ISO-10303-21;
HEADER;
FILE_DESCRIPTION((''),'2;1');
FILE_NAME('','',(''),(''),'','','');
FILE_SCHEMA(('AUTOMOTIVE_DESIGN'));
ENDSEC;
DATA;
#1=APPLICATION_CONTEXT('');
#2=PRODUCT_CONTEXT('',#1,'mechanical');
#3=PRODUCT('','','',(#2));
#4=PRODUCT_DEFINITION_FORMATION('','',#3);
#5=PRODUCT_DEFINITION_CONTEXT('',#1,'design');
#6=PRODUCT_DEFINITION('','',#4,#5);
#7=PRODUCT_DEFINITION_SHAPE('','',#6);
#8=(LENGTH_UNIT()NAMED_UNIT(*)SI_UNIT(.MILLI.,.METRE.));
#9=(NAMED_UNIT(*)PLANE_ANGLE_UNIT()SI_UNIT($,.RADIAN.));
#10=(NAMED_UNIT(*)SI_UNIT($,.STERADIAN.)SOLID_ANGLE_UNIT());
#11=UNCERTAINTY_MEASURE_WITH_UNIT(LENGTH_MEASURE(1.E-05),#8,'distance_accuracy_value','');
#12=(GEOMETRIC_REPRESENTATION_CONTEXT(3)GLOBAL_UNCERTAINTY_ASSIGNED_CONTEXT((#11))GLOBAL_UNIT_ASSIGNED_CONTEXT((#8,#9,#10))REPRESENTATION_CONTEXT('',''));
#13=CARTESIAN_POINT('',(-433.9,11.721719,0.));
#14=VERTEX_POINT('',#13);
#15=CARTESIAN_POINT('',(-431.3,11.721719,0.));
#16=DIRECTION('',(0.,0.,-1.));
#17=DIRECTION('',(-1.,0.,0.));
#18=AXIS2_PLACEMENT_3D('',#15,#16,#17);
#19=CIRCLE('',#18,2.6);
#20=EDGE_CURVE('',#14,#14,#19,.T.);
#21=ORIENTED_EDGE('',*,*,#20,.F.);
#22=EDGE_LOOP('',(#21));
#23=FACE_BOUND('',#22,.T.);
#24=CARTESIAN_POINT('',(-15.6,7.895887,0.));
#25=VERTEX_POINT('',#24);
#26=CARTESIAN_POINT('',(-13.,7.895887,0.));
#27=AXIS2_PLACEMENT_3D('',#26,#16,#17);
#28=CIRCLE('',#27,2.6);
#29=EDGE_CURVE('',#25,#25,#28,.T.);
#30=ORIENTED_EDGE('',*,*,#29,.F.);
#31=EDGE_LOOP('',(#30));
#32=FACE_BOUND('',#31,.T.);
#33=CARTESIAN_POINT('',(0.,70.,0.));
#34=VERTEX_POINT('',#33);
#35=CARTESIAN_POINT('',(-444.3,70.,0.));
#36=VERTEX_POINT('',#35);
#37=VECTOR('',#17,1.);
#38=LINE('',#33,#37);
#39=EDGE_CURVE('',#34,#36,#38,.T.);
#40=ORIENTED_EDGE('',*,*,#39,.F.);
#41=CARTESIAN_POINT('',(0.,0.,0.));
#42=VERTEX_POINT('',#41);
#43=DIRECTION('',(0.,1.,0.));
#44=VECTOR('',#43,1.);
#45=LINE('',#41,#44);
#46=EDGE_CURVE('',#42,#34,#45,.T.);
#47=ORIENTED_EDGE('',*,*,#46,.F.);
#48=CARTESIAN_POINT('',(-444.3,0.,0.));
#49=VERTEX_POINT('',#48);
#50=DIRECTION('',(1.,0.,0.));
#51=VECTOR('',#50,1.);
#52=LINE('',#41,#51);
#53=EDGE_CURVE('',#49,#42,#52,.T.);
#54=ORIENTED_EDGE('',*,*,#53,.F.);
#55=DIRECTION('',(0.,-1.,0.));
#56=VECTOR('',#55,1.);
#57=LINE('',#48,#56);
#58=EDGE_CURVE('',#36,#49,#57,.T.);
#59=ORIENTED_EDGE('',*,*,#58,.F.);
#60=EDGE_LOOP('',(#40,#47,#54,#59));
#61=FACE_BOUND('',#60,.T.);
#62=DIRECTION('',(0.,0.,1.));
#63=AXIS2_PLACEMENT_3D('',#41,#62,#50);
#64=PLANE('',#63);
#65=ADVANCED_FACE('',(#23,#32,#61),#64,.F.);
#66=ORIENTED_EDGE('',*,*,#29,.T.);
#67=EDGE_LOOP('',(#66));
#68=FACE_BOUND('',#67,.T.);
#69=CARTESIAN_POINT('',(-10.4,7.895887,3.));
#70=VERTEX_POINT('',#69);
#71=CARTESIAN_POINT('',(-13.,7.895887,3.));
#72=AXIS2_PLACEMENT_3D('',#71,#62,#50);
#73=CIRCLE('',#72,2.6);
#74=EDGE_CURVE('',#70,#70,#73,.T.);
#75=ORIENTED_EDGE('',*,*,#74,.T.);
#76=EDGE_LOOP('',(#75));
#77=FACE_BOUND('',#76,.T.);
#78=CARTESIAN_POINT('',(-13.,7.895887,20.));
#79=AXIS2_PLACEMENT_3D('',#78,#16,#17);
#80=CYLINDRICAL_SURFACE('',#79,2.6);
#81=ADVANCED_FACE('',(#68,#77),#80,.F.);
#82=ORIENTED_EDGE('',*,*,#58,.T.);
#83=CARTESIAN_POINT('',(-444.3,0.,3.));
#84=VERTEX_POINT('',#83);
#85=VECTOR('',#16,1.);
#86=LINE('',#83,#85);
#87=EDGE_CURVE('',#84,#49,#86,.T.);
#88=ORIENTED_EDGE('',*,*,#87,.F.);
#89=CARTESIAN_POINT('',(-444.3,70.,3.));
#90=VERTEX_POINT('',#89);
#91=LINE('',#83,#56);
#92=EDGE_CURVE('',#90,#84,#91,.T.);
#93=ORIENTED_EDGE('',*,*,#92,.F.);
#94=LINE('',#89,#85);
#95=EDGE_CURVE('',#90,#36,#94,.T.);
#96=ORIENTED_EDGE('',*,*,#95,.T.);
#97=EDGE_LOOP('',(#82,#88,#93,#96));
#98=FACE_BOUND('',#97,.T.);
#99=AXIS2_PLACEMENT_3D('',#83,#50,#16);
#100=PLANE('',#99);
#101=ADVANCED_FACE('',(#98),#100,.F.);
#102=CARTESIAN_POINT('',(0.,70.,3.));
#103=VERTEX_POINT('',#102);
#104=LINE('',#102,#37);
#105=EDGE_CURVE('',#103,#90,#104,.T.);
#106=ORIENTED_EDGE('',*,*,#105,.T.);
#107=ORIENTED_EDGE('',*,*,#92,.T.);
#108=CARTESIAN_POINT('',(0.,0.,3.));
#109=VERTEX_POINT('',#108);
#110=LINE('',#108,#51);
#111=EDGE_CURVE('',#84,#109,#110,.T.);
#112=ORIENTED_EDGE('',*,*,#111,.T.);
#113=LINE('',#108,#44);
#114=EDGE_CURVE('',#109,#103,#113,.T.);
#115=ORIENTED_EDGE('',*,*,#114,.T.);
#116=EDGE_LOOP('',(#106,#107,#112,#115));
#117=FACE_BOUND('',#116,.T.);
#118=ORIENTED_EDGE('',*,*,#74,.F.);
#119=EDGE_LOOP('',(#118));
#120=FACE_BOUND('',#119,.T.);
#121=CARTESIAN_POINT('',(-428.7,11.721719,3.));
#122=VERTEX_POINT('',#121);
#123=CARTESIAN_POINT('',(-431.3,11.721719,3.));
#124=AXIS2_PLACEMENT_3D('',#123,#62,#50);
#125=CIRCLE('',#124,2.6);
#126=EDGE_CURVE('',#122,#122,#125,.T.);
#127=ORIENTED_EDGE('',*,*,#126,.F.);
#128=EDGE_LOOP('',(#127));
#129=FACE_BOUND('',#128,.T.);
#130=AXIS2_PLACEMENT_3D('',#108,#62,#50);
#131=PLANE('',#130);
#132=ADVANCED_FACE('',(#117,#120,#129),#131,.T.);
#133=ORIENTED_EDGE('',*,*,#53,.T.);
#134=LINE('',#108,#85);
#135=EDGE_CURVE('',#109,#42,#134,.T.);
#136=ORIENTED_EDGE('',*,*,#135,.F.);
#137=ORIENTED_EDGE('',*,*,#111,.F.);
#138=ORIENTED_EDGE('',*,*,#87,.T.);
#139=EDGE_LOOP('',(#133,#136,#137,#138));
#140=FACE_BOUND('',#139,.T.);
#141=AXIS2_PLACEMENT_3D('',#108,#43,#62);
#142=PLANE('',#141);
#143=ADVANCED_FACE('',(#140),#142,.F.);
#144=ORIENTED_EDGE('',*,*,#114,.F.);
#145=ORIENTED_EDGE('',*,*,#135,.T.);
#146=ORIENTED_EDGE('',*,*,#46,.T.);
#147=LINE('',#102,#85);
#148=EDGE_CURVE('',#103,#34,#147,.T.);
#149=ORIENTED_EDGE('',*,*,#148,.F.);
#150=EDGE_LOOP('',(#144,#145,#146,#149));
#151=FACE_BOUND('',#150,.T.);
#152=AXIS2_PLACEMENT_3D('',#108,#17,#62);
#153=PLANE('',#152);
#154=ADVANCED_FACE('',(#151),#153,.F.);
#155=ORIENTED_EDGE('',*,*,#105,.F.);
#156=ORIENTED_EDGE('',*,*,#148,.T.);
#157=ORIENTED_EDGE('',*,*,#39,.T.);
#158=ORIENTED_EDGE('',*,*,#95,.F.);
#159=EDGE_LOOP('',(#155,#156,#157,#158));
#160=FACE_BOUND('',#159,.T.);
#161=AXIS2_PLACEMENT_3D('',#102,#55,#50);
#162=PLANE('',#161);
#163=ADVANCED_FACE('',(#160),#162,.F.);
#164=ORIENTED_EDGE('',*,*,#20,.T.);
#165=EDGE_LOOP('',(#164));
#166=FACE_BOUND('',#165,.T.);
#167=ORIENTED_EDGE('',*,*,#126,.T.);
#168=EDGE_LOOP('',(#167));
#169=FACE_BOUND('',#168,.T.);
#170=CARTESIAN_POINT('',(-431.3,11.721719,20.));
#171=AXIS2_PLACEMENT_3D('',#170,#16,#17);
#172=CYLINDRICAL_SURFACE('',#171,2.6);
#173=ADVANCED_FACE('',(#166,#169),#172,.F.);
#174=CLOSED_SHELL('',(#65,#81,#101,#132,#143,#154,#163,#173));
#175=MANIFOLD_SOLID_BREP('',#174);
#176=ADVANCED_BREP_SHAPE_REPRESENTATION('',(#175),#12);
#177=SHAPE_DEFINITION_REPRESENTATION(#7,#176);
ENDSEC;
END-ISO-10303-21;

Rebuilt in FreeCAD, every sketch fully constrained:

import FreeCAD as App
import Part
import Sketcher
from FreeCAD import Vector
Q = App.Units.Quantity


def add_polygon(sketch, points):
    """Adds a closed chain of lines whose ends are joined by coincident constraints."""
    first, n = sketch.GeometryCount, len(points)
    for a, b in zip(points, points[1:] + points[:1]):
        sketch.addGeometry(Part.LineSegment(App.Vector(*a, 0), App.Vector(*b, 0)), False)
    for i in range(n):
        sketch.addConstraint(Sketcher.Constraint("Coincident", first + i, 2, first + (i + 1) % n, 1))

doc = App.newDocument("Part")
body = doc.addObject("PartDesign::Body", "Body")

# Sketch on XY plane
sketch1 = body.newObject("Sketcher::SketchObject", "Sketch")
sketch1.AttachmentSupport = (doc.getObject("XY_Plane"), [""])
sketch1.MapMode = "FlatFace"
add_polygon(sketch1, [(-444, 70), (-444, 0), (0, 0), (0, 70)])  # lines 0-3
sketch1.addConstraint(Sketcher.Constraint("Vertical", 0))
sketch1.addConstraint(Sketcher.Constraint("Horizontal", 1))
sketch1.addConstraint(Sketcher.Constraint("Vertical", 2))
sketch1.addConstraint(Sketcher.Constraint("Horizontal", 3))
sketch1.addConstraint(Sketcher.Constraint("Coincident", 1, 2, -1, 1))
sketch1.addConstraint(Sketcher.Constraint("DistanceY", 0, 2, 0, 1, Q("70 mm")))
sketch1.addConstraint(Sketcher.Constraint("DistanceX", 1, 1, 1, 2, Q("444.3 mm")))
pad1 = body.newObject("PartDesign::Pad", "Pad")
pad1.Profile = sketch1
pad1.Length = 3

# Sketch on XY plane
sketch2 = body.newObject("Sketcher::SketchObject", "Sketch001")
sketch2.AttachmentSupport = (doc.getObject("XY_Plane"), [""])
sketch2.MapMode = "FlatFace"
sketch2.addGeometry(Part.Circle(Vector(-13, 7.9, 0), Vector(0, 0, 1), 2.6), False)
sketch2.addGeometry(Part.Circle(Vector(-431.3, 11.7, 0), Vector(0, 0, 1), 2.6), False)
sketch2.addConstraint(Sketcher.Constraint("Equal", 0, 1))
sketch2.addConstraint(Sketcher.Constraint("Diameter", 0, Q("5.2 mm")))
sketch2.addConstraint(Sketcher.Constraint("DistanceX", 0, 3, -1, 1, Q("13 mm")))
sketch2.addConstraint(Sketcher.Constraint("DistanceX", 1, 3, -1, 1, Q("431.3 mm")))
sketch2.addConstraint(Sketcher.Constraint("DistanceY", -1, 1, 1, 3, Q("11.721719 mm")))
sketch2.addConstraint(Sketcher.Constraint("DistanceY", -1, 1, 0, 3, Q("7.895887 mm")))
pocket1 = body.newObject("PartDesign::Pocket", "Pocket")
pocket1.Profile = sketch2
pocket1.Length = 20
pocket1.Reversed = True

doc.recompute()
